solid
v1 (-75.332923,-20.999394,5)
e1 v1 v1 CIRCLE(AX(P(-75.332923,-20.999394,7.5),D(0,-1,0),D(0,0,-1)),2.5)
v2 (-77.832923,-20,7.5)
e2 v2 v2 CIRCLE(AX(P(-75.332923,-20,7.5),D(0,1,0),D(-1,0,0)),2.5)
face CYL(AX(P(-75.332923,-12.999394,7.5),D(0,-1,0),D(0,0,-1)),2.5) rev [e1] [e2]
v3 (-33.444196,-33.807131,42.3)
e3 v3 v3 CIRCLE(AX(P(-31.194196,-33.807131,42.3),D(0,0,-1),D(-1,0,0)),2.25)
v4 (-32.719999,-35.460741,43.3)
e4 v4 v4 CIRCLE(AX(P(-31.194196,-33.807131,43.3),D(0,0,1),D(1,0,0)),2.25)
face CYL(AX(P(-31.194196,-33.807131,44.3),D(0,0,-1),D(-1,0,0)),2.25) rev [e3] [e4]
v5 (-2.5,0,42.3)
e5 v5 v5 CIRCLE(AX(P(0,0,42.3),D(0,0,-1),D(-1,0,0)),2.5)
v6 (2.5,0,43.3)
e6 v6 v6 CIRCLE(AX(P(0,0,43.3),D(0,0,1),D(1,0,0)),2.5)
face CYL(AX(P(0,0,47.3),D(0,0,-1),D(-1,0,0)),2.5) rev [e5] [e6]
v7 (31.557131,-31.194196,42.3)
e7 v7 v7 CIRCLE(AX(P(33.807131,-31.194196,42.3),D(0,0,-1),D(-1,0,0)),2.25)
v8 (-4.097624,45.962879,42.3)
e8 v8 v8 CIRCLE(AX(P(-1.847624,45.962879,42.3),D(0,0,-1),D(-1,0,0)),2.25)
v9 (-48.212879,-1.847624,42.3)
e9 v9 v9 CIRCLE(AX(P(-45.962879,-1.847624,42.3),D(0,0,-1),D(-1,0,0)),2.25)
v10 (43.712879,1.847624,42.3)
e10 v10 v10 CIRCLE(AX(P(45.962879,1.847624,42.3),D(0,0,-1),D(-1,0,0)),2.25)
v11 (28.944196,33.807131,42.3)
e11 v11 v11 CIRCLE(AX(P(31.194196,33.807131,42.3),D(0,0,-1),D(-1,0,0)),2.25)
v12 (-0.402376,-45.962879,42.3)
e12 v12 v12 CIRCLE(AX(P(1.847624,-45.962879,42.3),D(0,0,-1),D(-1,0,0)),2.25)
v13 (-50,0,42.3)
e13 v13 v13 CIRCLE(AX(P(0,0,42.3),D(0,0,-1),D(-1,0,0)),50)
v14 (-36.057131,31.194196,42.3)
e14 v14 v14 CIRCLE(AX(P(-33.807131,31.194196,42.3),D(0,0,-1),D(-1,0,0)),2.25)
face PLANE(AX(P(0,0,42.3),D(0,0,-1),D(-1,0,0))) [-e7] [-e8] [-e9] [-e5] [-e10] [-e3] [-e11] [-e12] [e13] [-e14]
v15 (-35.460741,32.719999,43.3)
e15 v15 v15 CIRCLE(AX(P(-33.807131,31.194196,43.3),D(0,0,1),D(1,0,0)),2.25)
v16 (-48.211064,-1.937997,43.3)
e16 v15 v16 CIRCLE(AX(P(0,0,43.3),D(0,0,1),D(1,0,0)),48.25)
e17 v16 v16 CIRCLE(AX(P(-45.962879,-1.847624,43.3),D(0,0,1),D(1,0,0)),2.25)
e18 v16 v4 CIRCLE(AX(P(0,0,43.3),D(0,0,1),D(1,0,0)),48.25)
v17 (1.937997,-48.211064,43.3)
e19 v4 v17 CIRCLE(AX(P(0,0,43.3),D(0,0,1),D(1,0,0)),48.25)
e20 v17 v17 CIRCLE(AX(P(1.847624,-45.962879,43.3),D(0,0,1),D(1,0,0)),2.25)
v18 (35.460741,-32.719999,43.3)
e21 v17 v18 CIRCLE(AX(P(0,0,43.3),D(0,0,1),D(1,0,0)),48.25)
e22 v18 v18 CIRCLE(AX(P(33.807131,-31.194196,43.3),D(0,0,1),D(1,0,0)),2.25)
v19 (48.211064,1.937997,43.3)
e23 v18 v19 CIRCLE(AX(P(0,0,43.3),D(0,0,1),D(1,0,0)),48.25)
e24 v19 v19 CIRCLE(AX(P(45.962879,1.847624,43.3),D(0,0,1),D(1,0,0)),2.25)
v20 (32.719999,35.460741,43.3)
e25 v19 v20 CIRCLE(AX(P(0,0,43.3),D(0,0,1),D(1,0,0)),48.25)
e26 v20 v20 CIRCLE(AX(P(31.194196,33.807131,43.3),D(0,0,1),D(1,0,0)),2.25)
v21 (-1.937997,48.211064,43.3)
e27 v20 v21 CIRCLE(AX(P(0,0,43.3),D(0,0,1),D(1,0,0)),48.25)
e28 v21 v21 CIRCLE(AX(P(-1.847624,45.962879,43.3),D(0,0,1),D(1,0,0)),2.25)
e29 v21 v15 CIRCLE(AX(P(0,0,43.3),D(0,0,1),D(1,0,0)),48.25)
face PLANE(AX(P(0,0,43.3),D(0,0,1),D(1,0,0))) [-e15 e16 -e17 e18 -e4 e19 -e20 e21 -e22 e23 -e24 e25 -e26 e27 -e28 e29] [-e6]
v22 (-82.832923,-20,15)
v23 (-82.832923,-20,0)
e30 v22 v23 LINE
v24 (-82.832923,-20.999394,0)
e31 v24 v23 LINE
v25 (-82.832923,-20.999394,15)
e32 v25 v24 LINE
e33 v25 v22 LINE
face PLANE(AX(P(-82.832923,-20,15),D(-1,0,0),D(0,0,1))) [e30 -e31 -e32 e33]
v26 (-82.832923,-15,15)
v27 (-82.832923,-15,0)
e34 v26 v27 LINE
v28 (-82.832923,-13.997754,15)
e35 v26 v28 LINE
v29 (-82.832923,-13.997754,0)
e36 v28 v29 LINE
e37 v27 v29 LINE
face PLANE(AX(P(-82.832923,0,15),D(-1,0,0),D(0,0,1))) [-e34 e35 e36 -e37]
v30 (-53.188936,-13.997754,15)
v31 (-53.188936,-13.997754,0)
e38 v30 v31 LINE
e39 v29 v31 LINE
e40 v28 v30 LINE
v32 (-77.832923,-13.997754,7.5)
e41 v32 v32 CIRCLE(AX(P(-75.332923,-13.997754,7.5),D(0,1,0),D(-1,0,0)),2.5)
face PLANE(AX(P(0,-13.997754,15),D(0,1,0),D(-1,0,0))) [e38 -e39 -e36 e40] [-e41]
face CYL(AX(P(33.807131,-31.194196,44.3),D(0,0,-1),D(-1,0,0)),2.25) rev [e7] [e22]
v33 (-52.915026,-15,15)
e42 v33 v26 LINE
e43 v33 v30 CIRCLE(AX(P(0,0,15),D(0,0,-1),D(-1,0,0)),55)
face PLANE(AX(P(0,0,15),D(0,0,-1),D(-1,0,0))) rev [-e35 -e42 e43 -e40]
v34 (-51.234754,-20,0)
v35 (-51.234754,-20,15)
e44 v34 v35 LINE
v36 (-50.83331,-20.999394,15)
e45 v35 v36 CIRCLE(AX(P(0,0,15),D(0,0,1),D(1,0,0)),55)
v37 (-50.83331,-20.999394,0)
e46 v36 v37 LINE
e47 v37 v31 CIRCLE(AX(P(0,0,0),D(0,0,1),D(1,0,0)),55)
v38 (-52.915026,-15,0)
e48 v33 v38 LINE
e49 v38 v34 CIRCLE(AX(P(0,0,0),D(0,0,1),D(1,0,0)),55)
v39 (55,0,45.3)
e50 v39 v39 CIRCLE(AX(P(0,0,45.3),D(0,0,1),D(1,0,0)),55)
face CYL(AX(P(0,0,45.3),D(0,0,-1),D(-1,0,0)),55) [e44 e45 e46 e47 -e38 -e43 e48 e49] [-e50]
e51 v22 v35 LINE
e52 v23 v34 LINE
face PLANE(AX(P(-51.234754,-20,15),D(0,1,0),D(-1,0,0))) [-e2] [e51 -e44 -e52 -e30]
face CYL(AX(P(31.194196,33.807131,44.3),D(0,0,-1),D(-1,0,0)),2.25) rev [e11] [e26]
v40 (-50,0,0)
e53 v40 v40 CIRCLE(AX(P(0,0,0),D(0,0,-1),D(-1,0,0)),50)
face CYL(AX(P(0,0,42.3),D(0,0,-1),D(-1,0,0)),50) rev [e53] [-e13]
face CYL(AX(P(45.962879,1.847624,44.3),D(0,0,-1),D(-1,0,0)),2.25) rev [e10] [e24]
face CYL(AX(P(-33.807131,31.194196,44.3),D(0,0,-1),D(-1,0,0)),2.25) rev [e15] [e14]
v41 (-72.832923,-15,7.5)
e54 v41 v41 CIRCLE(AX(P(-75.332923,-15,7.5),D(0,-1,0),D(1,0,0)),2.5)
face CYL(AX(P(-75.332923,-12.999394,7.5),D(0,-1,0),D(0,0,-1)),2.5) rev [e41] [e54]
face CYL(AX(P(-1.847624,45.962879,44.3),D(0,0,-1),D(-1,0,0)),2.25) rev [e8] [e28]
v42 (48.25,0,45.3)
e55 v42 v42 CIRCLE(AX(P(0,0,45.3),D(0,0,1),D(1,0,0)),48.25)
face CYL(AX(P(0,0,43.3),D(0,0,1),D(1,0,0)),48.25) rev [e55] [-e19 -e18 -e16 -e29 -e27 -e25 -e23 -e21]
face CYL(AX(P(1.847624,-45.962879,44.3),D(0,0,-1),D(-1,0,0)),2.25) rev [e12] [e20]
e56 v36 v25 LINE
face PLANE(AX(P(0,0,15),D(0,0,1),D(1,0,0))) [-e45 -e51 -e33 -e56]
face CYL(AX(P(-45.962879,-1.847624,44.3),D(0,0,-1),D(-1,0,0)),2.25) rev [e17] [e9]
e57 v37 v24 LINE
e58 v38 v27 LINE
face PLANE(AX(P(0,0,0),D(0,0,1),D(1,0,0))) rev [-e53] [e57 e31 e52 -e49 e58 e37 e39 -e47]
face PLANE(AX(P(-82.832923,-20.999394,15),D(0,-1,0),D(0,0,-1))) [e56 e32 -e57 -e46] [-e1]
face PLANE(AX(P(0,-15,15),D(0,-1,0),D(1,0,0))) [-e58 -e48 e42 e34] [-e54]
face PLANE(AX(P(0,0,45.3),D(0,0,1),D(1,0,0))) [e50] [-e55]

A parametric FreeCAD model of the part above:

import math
import FreeCAD as App
import Part
import Sketcher
from FreeCAD import Vector
Q = App.Units.Quantity


def add_polygon(sketch, points):
    """Adds a closed chain of lines whose ends are joined by coincident constraints."""
    first, n = sketch.GeometryCount, len(points)
    for a, b in zip(points, points[1:] + points[:1]):
        sketch.addGeometry(Part.LineSegment(App.Vector(*a, 0), App.Vector(*b, 0)), False)
    for i in range(n):
        sketch.addConstraint(Sketcher.Constraint("Coincident", first + i, 2, first + (i + 1) % n, 1))

doc = App.newDocument("Part")
params = doc.addObject("Spreadsheet::Sheet", "Params")
for row, (alias, value) in enumerate([
    ("sketch1_diameter", "110 mm"),
    ("pad1_length", "45.3 mm"),
    ("sketch2_diameter", "100 mm"),
    ("pocket1_length", "42.3 mm"),
    ("sketch3_diameter", "96.5 mm"),
    ("pocket2_length", "2 mm"),
    ("sketch4_diameter", "4.5 mm"),
    ("pocket3_length", "2 mm"),
    ("sketch5_diameter", "5 mm"),
    ("pocket4_length", "5 mm"),
    ("pad2_length", "15 mm"),
    ("pad3_length", "15 mm"),
    ("sketch8_diameter", "5 mm"),
    ("pocket5_length", "8 mm"),
], start=1):
    params.set(f"A{row}", alias)
    params.set(f"B{row}", "=" + value)
    params.setAlias(f"B{row}", alias)

body = doc.addObject("PartDesign::Body", "Body")

sketch1 = body.newObject("Sketcher::SketchObject", "Sketch")
sketch1.AttachmentSupport = (doc.getObject("XY_Plane"), [""])
sketch1.MapMode = "FlatFace"
sketch1.addGeometry(Part.Circle(Vector(0, 0, 0), Vector(0, 0, 1), 55), False)
sketch1.addConstraint(Sketcher.Constraint("Coincident", 0, 3, -1, 1))
sketch1.addConstraint(Sketcher.Constraint("Diameter", 0, Q("110 mm")))
sketch1.setExpression("Constraints[1]", "Params.sketch1_diameter")
pad1 = body.newObject("PartDesign::Pad", "Pad")
pad1.Profile = sketch1
pad1.setExpression("Length", "Params.pad1_length")

sketch2 = body.newObject("Sketcher::SketchObject", "Sketch001")
sketch2.AttachmentSupport = (doc.getObject("XY_Plane"), [""])
sketch2.MapMode = "FlatFace"
sketch2.addGeometry(Part.Circle(Vector(0, 0, 0), Vector(0, 0, 1), 50), False)
sketch2.addConstraint(Sketcher.Constraint("Coincident", 0, 3, -1, 1))
sketch2.addConstraint(Sketcher.Constraint("Diameter", 0, Q("100 mm")))
sketch2.setExpression("Constraints[1]", "Params.sketch2_diameter")
pocket1 = body.newObject("PartDesign::Pocket", "Pocket")
pocket1.Profile = sketch2
pocket1.setExpression("Length", "Params.pocket1_length")
pocket1.Reversed = True

sketch3 = body.newObject("Sketcher::SketchObject", "Sketch002")
sketch3.AttachmentSupport = (doc.getObject("XY_Plane"), [""])
sketch3.MapMode = "FlatFace"
sketch3.AttachmentOffset = App.Placement(Vector(0, 0, 45.3), App.Rotation())
sketch3.addGeometry(Part.Circle(Vector(0, 0, 0), Vector(0, 0, 1), 48), False)
sketch3.addConstraint(Sketcher.Constraint("Coincident", 0, 3, -1, 1))
sketch3.addConstraint(Sketcher.Constraint("Diameter", 0, Q("96.5 mm")))
sketch3.setExpression("Constraints[1]", "Params.sketch3_diameter")
pocket2 = body.newObject("PartDesign::Pocket", "Pocket001")
pocket2.Profile = sketch3
pocket2.setExpression("Length", "Params.pocket2_length")

sketch4 = body.newObject("Sketcher::SketchObject", "Sketch003")
sketch4.AttachmentSupport = (doc.getObject("XY_Plane"), [""])
sketch4.MapMode = "FlatFace"
sketch4.AttachmentOffset = App.Placement(Vector(0, 0, 42.3), App.Rotation())
sketch4.addGeometry(Part.Circle(Vector(-31.2, -33.8, 0), Vector(0, 0, 1), 2.2), False)
sketch4.addGeometry(Part.Circle(Vector(1.8, -46, 0), Vector(0, 0, 1), 2.2), False)
sketch4.addGeometry(Part.Circle(Vector(33.8, -31.2, 0), Vector(0, 0, 1), 2.2), False)
sketch4.addGeometry(Part.Circle(Vector(46, 1.8, 0), Vector(0, 0, 1), 2.2), False)
sketch4.addGeometry(Part.Circle(Vector(31.2, 33.8, 0), Vector(0, 0, 1), 2.2), False)
sketch4.addGeometry(Part.Circle(Vector(-1.8, 46, 0), Vector(0, 0, 1), 2.2), False)
sketch4.addGeometry(Part.Circle(Vector(-33.8, 31.2, 0), Vector(0, 0, 1), 2.2), False)
sketch4.addGeometry(Part.Circle(Vector(-46, -1.8, 0), Vector(0, 0, 1), 2.2), False)
sketch4.addConstraint(Sketcher.Constraint("Equal", 0, 1))
sketch4.addConstraint(Sketcher.Constraint("Equal", 1, 2))
sketch4.addConstraint(Sketcher.Constraint("Equal", 2, 3))
sketch4.addConstraint(Sketcher.Constraint("Equal", 3, 4))
sketch4.addConstraint(Sketcher.Constraint("Equal", 4, 5))
sketch4.addConstraint(Sketcher.Constraint("Equal", 5, 6))
sketch4.addConstraint(Sketcher.Constraint("Equal", 6, 7))
sketch4.addConstraint(Sketcher.Constraint("Symmetric", 0, 3, 4, 3, -1, 1))
sketch4.addConstraint(Sketcher.Constraint("Symmetric", 1, 3, 5, 3, -1, 1))
sketch4.addConstraint(Sketcher.Constraint("Symmetric", 2, 3, 6, 3, -1, 1))
sketch4.addConstraint(Sketcher.Constraint("Symmetric", 3, 3, 7, 3, -1, 1))
sketch4.addConstraint(Sketcher.Constraint("Diameter", 0, Q("4.5 mm")))
sketch4.addConstraint(Sketcher.Constraint("DistanceY", 0, 3, -1, 1, Q("33.807131 mm")))
sketch4.addConstraint(Sketcher.Constraint("DistanceY", 1, 3, -1, 1, Q("45.962879 mm")))
sketch4.addConstraint(Sketcher.Constraint("DistanceX", -1, 1, 2, 3, Q("33.807131 mm")))
sketch4.addConstraint(Sketcher.Constraint("DistanceX", -1, 1, 3, 3, Q("45.962879 mm")))
sketch4.addConstraint(Sketcher.Constraint("DistanceX", 0, 3, 1, 3, Q("33.04182 mm")))
sketch4.addConstraint(Sketcher.Constraint("DistanceY", 2, 3, 3, 3, Q("33.04182 mm")))
sketch4.addConstraint(Sketcher.Constraint("DistanceX", 1, 3, 4, 3, Q("29.346571 mm")))
sketch4.addConstraint(Sketcher.Constraint("DistanceY", 3, 3, 6, 3, Q("29.346571 mm")))
sketch4.setExpression("Constraints[11]", "Params.sketch4_diameter")
pocket3 = body.newObject("PartDesign::Pocket", "Pocket002")
pocket3.Profile = sketch4
pocket3.setExpression("Length", "Params.pocket3_length")
pocket3.Reversed = True

sketch5 = body.newObject("Sketcher::SketchObject", "Sketch004")
sketch5.AttachmentSupport = (doc.getObject("XY_Plane"), [""])
sketch5.MapMode = "FlatFace"
sketch5.AttachmentOffset = App.Placement(Vector(0, 0, 42.3), App.Rotation())
sketch5.addGeometry(Part.Circle(Vector(0, 0, 0), Vector(0, 0, 1), 2.5), False)
sketch5.addConstraint(Sketcher.Constraint("Coincident", 0, 3, -1, 1))
sketch5.addConstraint(Sketcher.Constraint("Diameter", 0, Q("5 mm")))
sketch5.setExpression("Constraints[1]", "Params.sketch5_diameter")
pocket4 = body.newObject("PartDesign::Pocket", "Pocket003")
pocket4.Profile = sketch5
pocket4.setExpression("Length", "Params.pocket4_length")
pocket4.Reversed = True

sketch6 = body.newObject("Sketcher::SketchObject", "Sketch005")
sketch6.AttachmentSupport = (doc.getObject("XY_Plane"), [""])
sketch6.MapMode = "FlatFace"
sketch6.addGeometry(Part.ArcOfCircle(Part.Circle(Vector(0, 0, 0), Vector(0, 0, 1), 55), math.radians(-165.26), math.radians(-164.17)), False)
sketch6.addGeometry(Part.LineSegment(Vector(-52.9, -15, 0), Vector(-82.8, -15, 0)), False)
sketch6.addGeometry(Part.LineSegment(Vector(-82.8, -15, 0), Vector(-82.8, -14, 0)), False)
sketch6.addGeometry(Part.LineSegment(Vector(-82.8, -14, 0), Vector(-53.2, -14, 0)), False)
sketch6.addConstraint(Sketcher.Constraint("Coincident", 0, 2, 1, 1))
sketch6.addConstraint(Sketcher.Constraint("Coincident", 1, 2, 2, 1))
sketch6.addConstraint(Sketcher.Constraint("Coincident", 2, 2, 3, 1))
sketch6.addConstraint(Sketcher.Constraint("Coincident", 3, 2, 0, 1))
sketch6.addConstraint(Sketcher.Constraint("Horizontal", 1))
sketch6.addConstraint(Sketcher.Constraint("Vertical", 2))
sketch6.addConstraint(Sketcher.Constraint("Horizontal", 3))
sketch6.addConstraint(Sketcher.Constraint("Coincident", 0, 3, -1, 1))
sketch6.addConstraint(Sketcher.Constraint("DistanceY", 0, 2, -1, 1, Q("15 mm")))
sketch6.addConstraint(Sketcher.Constraint("Radius", 0, Q("54.999992 mm")))
sketch6.addConstraint(Sketcher.Constraint("DistanceX", 1, 2, 1, 1, Q("29.917897 mm")))
sketch6.addConstraint(Sketcher.Constraint("DistanceX", 3, 1, 3, 2, Q("29.643987 mm")))
pad2 = body.newObject("PartDesign::Pad", "Pad001")
pad2.Profile = sketch6
pad2.setExpression("Length", "Params.pad2_length")

sketch7 = body.newObject("Sketcher::SketchObject", "Sketch006")
sketch7.AttachmentSupport = (doc.getObject("XY_Plane"), [""])
sketch7.MapMode = "FlatFace"
add_polygon(sketch7, [(-82.8, -20), (-51.2, -20), (-50.8, -21), (-82.8, -21)])
sketch7.addConstraint(Sketcher.Constraint("Horizontal", 0))
sketch7.addConstraint(Sketcher.Constraint("Horizontal", 2))
sketch7.addConstraint(Sketcher.Constraint("Vertical", 3))
sketch7.addConstraint(Sketcher.Constraint("DistanceY", 0, 2, -1, 1, Q("20 mm")))
sketch7.addConstraint(Sketcher.Constraint("DistanceX", 0, 1, 0, 2, Q("31.607647 mm")))
sketch7.addConstraint(Sketcher.Constraint("DistanceX", 2, 2, 2, 1, Q("32.067626 mm")))
sketch7.addConstraint(Sketcher.Constraint("DistanceY", 3, 1, 3, 2, Q("0.999394 mm")))
sketch7.addConstraint(Sketcher.Constraint("DistanceX", 0, 2, -1, 1, Q("51.225275 mm")))
pad3 = body.newObject("PartDesign::Pad", "Pad002")
pad3.Profile = sketch7
pad3.setExpression("Length", "Params.pad3_length")

sketch8 = body.newObject("Sketcher::SketchObject", "Sketch007")
sketch8.AttachmentSupport = (doc.getObject("XZ_Plane"), [""])
sketch8.MapMode = "FlatFace"
sketch8.AttachmentOffset = App.Placement(Vector(0, 0, 20.999394), App.Rotation())
sketch8.addGeometry(Part.Circle(Vector(-75.3, 7.5, 0), Vector(0, 0, 1), 2.5), False)
sketch8.addConstraint(Sketcher.Constraint("Diameter", 0, Q("5 mm")))
sketch8.addConstraint(Sketcher.Constraint("DistanceY", -1, 1, 0, 3, Q("7.5 mm")))
sketch8.addConstraint(Sketcher.Constraint("DistanceX", 0, 3, -1, 1, Q("75.332923 mm")))
sketch8.setExpression("Constraints[0]", "Params.sketch8_diameter")
pocket5 = body.newObject("PartDesign::Pocket", "Pocket004")
pocket5.Profile = sketch8
pocket5.setExpression("Length", "Params.pocket5_length")

doc.recompute()
